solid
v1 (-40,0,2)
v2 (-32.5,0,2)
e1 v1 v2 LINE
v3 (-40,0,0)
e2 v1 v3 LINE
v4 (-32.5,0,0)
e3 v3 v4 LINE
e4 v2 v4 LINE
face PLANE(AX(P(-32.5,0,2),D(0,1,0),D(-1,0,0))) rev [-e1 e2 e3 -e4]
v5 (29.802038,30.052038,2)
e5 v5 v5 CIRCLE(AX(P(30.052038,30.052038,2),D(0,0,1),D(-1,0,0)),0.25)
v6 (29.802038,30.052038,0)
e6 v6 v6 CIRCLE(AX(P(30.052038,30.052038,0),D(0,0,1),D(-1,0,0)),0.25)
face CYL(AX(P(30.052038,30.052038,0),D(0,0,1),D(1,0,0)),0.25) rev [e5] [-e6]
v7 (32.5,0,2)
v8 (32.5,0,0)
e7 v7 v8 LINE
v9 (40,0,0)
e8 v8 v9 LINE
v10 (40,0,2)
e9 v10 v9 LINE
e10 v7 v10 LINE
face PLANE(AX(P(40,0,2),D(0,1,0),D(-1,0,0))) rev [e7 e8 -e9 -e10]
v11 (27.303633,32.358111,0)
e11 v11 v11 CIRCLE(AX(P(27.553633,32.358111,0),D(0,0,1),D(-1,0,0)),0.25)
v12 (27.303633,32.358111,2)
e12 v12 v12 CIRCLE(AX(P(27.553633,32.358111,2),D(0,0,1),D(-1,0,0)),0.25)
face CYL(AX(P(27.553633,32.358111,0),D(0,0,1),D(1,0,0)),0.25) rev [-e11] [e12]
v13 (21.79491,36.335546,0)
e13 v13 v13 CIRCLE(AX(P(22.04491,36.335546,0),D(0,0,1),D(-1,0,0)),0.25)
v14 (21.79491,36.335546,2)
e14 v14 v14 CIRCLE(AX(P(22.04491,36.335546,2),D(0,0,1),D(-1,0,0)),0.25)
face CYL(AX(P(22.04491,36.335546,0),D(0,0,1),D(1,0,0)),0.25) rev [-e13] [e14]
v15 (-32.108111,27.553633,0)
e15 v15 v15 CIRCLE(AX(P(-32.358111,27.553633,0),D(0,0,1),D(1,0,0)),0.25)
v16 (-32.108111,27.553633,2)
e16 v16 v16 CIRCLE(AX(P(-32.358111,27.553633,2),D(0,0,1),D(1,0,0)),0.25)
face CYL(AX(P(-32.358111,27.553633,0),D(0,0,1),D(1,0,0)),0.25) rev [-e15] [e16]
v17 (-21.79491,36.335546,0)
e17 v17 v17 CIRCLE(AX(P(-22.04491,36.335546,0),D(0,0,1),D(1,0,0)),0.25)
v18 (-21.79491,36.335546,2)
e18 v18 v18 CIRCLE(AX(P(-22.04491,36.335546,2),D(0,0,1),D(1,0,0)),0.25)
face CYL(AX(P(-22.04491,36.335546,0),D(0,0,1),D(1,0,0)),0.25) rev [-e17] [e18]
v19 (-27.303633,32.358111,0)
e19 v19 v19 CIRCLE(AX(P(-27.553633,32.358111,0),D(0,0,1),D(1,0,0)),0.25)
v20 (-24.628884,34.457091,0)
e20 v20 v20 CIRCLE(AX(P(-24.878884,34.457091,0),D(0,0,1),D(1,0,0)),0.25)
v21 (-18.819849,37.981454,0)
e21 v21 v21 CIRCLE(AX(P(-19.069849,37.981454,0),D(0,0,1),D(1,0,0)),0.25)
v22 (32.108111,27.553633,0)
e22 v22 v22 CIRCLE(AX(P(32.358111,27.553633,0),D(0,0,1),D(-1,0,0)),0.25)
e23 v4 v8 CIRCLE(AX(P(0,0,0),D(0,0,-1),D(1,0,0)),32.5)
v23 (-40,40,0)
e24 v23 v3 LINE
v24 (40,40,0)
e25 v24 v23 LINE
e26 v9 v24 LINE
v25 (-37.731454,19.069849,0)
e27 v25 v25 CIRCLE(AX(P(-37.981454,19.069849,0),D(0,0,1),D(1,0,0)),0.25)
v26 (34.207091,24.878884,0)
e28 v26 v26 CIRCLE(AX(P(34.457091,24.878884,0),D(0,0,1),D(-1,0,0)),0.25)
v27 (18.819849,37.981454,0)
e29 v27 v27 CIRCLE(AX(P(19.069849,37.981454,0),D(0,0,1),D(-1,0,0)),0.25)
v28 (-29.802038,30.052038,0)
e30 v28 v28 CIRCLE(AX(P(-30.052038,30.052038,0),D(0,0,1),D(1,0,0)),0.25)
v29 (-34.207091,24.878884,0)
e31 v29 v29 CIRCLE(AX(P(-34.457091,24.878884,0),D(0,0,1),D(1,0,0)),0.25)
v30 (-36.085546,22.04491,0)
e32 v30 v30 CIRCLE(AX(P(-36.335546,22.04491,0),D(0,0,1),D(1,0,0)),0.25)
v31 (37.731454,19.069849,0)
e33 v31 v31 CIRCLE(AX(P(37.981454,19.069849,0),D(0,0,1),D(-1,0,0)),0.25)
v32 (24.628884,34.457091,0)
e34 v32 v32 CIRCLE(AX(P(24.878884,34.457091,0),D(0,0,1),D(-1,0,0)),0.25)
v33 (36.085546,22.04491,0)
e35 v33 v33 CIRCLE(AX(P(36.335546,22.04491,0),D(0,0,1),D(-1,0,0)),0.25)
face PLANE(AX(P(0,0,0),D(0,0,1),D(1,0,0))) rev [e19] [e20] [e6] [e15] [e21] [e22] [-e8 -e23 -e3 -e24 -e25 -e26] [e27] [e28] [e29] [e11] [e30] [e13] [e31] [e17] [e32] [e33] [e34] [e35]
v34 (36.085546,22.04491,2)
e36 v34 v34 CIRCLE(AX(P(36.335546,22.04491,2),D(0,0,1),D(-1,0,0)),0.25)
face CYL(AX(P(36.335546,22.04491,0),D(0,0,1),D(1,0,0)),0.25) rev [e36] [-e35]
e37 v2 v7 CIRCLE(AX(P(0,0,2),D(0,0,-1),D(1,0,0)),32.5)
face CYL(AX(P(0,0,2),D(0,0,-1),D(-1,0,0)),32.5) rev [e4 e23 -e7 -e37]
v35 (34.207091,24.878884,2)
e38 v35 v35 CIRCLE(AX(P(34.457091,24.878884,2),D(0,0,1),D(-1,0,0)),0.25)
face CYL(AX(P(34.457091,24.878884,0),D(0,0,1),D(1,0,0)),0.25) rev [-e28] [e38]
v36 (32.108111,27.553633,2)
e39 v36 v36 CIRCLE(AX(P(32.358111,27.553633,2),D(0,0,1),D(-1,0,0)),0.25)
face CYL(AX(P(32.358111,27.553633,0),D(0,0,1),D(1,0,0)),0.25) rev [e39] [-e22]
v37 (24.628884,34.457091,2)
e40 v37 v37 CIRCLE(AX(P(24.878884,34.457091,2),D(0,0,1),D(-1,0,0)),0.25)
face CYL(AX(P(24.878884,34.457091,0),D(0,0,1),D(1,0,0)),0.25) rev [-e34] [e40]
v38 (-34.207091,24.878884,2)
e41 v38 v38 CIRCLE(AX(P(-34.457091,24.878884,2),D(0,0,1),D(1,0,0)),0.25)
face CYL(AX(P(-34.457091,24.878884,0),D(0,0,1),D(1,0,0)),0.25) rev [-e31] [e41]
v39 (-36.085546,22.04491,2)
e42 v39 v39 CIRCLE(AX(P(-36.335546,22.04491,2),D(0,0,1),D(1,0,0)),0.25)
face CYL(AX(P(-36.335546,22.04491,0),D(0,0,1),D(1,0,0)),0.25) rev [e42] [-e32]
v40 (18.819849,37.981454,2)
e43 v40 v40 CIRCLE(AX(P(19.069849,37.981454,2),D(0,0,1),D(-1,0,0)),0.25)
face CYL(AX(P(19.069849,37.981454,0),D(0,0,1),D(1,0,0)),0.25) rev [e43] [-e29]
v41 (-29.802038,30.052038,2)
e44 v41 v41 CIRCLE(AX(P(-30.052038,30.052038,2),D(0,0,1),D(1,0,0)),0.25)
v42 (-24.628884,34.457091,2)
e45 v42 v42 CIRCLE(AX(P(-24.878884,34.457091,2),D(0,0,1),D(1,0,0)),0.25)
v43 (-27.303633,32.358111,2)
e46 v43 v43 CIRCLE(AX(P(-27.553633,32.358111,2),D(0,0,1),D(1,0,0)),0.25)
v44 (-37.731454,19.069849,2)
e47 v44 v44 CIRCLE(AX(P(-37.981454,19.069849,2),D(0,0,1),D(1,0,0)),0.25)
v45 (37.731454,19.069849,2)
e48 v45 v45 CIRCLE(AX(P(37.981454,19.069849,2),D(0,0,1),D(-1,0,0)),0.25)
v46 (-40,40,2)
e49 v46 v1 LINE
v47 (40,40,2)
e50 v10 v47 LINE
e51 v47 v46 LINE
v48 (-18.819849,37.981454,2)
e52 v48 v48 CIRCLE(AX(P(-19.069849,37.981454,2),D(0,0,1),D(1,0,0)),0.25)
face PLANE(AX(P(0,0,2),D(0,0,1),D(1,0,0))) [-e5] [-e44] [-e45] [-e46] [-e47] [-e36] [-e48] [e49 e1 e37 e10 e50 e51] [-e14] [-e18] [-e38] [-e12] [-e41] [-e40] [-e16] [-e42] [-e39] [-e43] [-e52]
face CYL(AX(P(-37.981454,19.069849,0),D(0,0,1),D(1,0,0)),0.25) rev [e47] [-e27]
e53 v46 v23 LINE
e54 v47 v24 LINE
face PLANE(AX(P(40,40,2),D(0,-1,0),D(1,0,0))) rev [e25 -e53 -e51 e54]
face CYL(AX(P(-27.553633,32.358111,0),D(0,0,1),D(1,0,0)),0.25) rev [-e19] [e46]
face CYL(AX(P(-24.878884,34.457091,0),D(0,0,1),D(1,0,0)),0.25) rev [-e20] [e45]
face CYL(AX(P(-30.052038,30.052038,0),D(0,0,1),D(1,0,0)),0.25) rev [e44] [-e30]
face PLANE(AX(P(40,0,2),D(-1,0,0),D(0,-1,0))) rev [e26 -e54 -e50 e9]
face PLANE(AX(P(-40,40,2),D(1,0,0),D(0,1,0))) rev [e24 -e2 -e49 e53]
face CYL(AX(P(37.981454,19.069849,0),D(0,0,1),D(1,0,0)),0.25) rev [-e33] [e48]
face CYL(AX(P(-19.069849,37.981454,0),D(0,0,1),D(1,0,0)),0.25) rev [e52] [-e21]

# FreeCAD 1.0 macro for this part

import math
import FreeCAD as App
import Part
import Sketcher

doc = App.newDocument("Part")
body = doc.addObject("PartDesign::Body", "Body")

# Sketch on XY plane
sketch1 = body.newObject("Sketcher::SketchObject", "Sketch")
sketch1.AttachmentSupport = (doc.getObject("XY_Plane"), [""])
sketch1.MapMode = "FlatFace"
sketch1.addGeometry(Part.LineSegment(App.Vector(40, 0, 0), App.Vector(40, 40, 0)), False)
sketch1.addGeometry(Part.LineSegment(App.Vector(40, 40, 0), App.Vector(-40, 40, 0)), False)
sketch1.addGeometry(Part.LineSegment(App.Vector(-40, 40, 0), App.Vector(-40, 0, 0)), False)
sketch1.addGeometry(Part.LineSegment(App.Vector(-40, 0, 0), App.Vector(-32, 0, 0)), False)
sketch1.addGeometry(Part.ArcOfCircle(Part.Circle(App.Vector(0, 0, 0), App.Vector(0, 0, 1), 32), math.radians(0), math.radians(180)), False)
sketch1.addGeometry(Part.LineSegment(App.Vector(32, 0, 0), App.Vector(40, 0, 0)), False)
sketch1.addConstraint(Sketcher.Constraint("Coincident", 0, 2, 1, 1))
sketch1.addConstraint(Sketcher.Constraint("Coincident", 1, 2, 2, 1))
sketch1.addConstraint(Sketcher.Constraint("Coincident", 2, 2, 3, 1))
sketch1.addConstraint(Sketcher.Constraint("Coincident", 3, 2, 4, 2))
sketch1.addConstraint(Sketcher.Constraint("Coincident", 4, 1, 5, 1))
sketch1.addConstraint(Sketcher.Constraint("Coincident", 5, 2, 0, 1))
sketch1.addConstraint(Sketcher.Constraint("Vertical", 0))
sketch1.addConstraint(Sketcher.Constraint("Horizontal", 1))
sketch1.addConstraint(Sketcher.Constraint("Vertical", 2))
sketch1.addConstraint(Sketcher.Constraint("Horizontal", 3))
sketch1.addConstraint(Sketcher.Constraint("Horizontal", 5))
sketch1.addConstraint(Sketcher.Constraint("Coincident", 4, 3, -1, 1))
sketch1.addConstraint(Sketcher.Constraint("Symmetric", 2, 2, 5, 2, -1, 1))
sketch1.addConstraint(Sketcher.Constraint("PointOnObject", 2, 2, -1))
sketch1.addConstraint(Sketcher.Constraint("Radius", 4, 32.5))
sketch1.addConstraint(Sketcher.Constraint("DistanceX", 1, 2, 1, 1, 80.0))
sketch1.addConstraint(Sketcher.Constraint("DistanceY", 0, 1, 0, 2, 40.0))
pad1 = body.newObject("PartDesign::Pad", "Pad")
pad1.Profile = sketch1
pad1.Length = 2

# Sketch on XY plane
sketch2 = body.newObject("Sketcher::SketchObject", "Sketch001")
sketch2.AttachmentSupport = (doc.getObject("XY_Plane"), [""])
sketch2.MapMode = "FlatFace"
sketch2.AttachmentOffset = App.Placement(App.Vector(0, 0, 2), App.Rotation())
sketch2.addGeometry(Part.Circle(App.Vector(-37.98, 19.07, 0), App.Vector(0, 0, 1), 0.25), False)
sketch2.addGeometry(Part.Circle(App.Vector(-36.34, 22.04, 0), App.Vector(0, 0, 1), 0.25), False)
sketch2.addGeometry(Part.Circle(App.Vector(-34.46, 24.88, 0), App.Vector(0, 0, 1), 0.25), False)
sketch2.addGeometry(Part.Circle(App.Vector(-32.36, 27.55, 0), App.Vector(0, 0, 1), 0.25), False)
sketch2.addGeometry(Part.Circle(App.Vector(-30.05, 30.05, 0), App.Vector(0, 0, 1), 0.25), False)
sketch2.addGeometry(Part.Circle(App.Vector(-27.55, 32.36, 0), App.Vector(0, 0, 1), 0.25), False)
sketch2.addGeometry(Part.Circle(App.Vector(-24.88, 34.46, 0), App.Vector(0, 0, 1), 0.25), False)
sketch2.addGeometry(Part.Circle(App.Vector(-22.04, 36.34, 0), App.Vector(0, 0, 1), 0.25), False)
sketch2.addGeometry(Part.Circle(App.Vector(-19.07, 37.98, 0), App.Vector(0, 0, 1), 0.25), False)
sketch2.addGeometry(Part.Circle(App.Vector(19.07, 37.98, 0), App.Vector(0, 0, 1), 0.25), False)
sketch2.addGeometry(Part.Circle(App.Vector(22.04, 36.34, 0), App.Vector(0, 0, 1), 0.25), False)
sketch2.addGeometry(Part.Circle(App.Vector(24.88, 34.46, 0), App.Vector(0, 0, 1), 0.25), False)
sketch2.addGeometry(Part.Circle(App.Vector(27.55, 32.36, 0), App.Vector(0, 0, 1), 0.25), False)
sketch2.addGeometry(Part.Circle(App.Vector(30.05, 30.05, 0), App.Vector(0, 0, 1), 0.25), False)
sketch2.addGeometry(Part.Circle(App.Vector(32.36, 27.55, 0), App.Vector(0, 0, 1), 0.25), False)
sketch2.addGeometry(Part.Circle(App.Vector(34.46, 24.88, 0), App.Vector(0, 0, 1), 0.25), False)
sketch2.addGeometry(Part.Circle(App.Vector(36.34, 22.04, 0), App.Vector(0, 0, 1), 0.25), False)
sketch2.addGeometry(Part.Circle(App.Vector(37.98, 19.07, 0), App.Vector(0, 0, 1), 0.25), False)
sketch2.addConstraint(Sketcher.Constraint("Equal", 0, 1))
sketch2.addConstraint(Sketcher.Constraint("Equal", 1, 2))
sketch2.addConstraint(Sketcher.Constraint("Equal", 2, 3))
sketch2.addConstraint(Sketcher.Constraint("Equal", 3, 4))
sketch2.addConstraint(Sketcher.Constraint("Equal", 4, 5))
sketch2.addConstraint(Sketcher.Constraint("Equal", 5, 6))
sketch2.addConstraint(Sketcher.Constraint("Equal", 6, 7))
sketch2.addConstraint(Sketcher.Constraint("Equal", 7, 8))
sketch2.addConstraint(Sketcher.Constraint("Equal", 8, 9))
sketch2.addConstraint(Sketcher.Constraint("Equal", 9, 10))
sketch2.addConstraint(Sketcher.Constraint("Equal", 10, 11))
sketch2.addConstraint(Sketcher.Constraint("Equal", 11, 12))
sketch2.addConstraint(Sketcher.Constraint("Equal", 12, 13))
sketch2.addConstraint(Sketcher.Constraint("Equal", 13, 14))
sketch2.addConstraint(Sketcher.Constraint("Equal", 14, 15))
sketch2.addConstraint(Sketcher.Constraint("Equal", 15, 16))
sketch2.addConstraint(Sketcher.Constraint("Equal", 16, 17))
sketch2.addConstraint(Sketcher.Constraint("Symmetric", 8, 3, 9, 3, -2))
sketch2.addConstraint(Sketcher.Constraint("Symmetric", 7, 3, 10, 3, -2))
sketch2.addConstraint(Sketcher.Constraint("Symmetric", 6, 3, 11, 3, -2))
sketch2.addConstraint(Sketcher.Constraint("Symmetric", 5, 3, 12, 3, -2))
sketch2.addConstraint(Sketcher.Constraint("Symmetric", 4, 3, 13, 3, -2))
sketch2.addConstraint(Sketcher.Constraint("Symmetric", 3, 3, 14, 3, -2))
sketch2.addConstraint(Sketcher.Constraint("Symmetric", 2, 3, 15, 3, -2))
sketch2.addConstraint(Sketcher.Constraint("Symmetric", 1, 3, 16, 3, -2))
sketch2.addConstraint(Sketcher.Constraint("Symmetric", 0, 3, 17, 3, -2))
sketch2.addConstraint(Sketcher.Constraint("Diameter", 0, 0.5))
sketch2.addConstraint(Sketcher.Constraint("DistanceY", 1, 3, 5, 3, 10.3132))
sketch2.addConstraint(Sketcher.Constraint("DistanceX", 3, 3, 7, 3, 10.3132))
sketch2.addConstraint(Sketcher.Constraint("DistanceX", 8, 3, 9, 3, 38.139699))
sketch2.addConstraint(Sketcher.Constraint("DistanceY", -1, 1, 0, 3, 19.069849))
sketch2.addConstraint(Sketcher.Constraint("DistanceY", -1, 1, 1, 3, 22.04491))
sketch2.addConstraint(Sketcher.Constraint("DistanceX", 2, 3, -1, 1, 34.457091))
sketch2.addConstraint(Sketcher.Constraint("DistanceX", 3, 3, -1, 1, 32.358111))
sketch2.addConstraint(Sketcher.Constraint("DistanceX", 4, 3, -1, 1, 30.052038))
sketch2.addConstraint(Sketcher.Constraint("DistanceY", -1, 1, 4, 3, 30.052038))
sketch2.addConstraint(Sketcher.Constraint("DistanceY", -1, 1, 6, 3, 34.457091))
sketch2.addConstraint(Sketcher.Constraint("DistanceY", 2, 3, 3, 3, 2.674749))
sketch2.addConstraint(Sketcher.Constraint("DistanceX", 1, 3, 4, 3, 6.283508))
sketch2.addConstraint(Sketcher.Constraint("DistanceX", 2, 3, 5, 3, 6.903458))
sketch2.addConstraint(Sketcher.Constraint("DistanceX", 0, 3, 5, 3, 10.427821))
sketch2.addConstraint(Sketcher.Constraint("DistanceX", 5, 3, 6, 3, 2.674749))
sketch2.addConstraint(Sketcher.Constraint("DistanceY", 3, 3, 6, 3, 6.903458))
sketch2.addConstraint(Sketcher.Constraint("DistanceY", 4, 3, 7, 3, 6.283508))
sketch2.addConstraint(Sketcher.Constraint("DistanceY", 3, 3, 8, 3, 10.427821))
pocket1 = body.newObject("PartDesign::Pocket", "Pocket")
pocket1.Profile = sketch2
pocket1.Length = 2

doc.recompute()
